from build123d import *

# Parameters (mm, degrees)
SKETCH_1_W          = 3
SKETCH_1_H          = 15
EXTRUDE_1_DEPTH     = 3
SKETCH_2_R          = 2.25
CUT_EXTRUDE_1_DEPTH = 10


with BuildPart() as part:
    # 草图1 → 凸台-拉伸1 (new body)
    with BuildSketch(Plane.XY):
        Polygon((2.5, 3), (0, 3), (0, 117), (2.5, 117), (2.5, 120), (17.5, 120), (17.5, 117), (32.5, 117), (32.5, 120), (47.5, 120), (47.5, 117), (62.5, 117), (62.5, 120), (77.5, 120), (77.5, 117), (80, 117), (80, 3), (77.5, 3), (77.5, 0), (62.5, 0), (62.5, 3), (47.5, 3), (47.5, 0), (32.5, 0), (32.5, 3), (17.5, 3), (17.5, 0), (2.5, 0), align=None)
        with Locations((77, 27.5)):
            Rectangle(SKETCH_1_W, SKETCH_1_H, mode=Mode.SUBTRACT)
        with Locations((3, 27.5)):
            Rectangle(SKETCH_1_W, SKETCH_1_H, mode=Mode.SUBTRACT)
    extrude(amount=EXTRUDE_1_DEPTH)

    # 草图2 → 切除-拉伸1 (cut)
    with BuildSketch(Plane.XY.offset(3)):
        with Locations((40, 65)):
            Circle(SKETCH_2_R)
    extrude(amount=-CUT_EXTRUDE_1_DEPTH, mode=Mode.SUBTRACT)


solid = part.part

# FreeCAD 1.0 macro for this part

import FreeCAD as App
import Part
import Sketcher

V = App.Vector
Q = App.Units.Quantity

doc = App.newDocument("Part")
params = doc.addObject("Spreadsheet::Sheet", "Params")
for row, (alias, value) in enumerate([
    ("sketch1_width", "15 mm"),
    ("sketch1_width2", "3 mm"),
    ("sketch1_height", "114 mm"),
    ("sketch1_width3", "2.5 mm"),
    ("pad1_length", "3 mm"),
    ("sketch2_diameter", "4.5 mm"),
    ("pocket1_length", "10 mm"),
], start=1):
    params.set(f"A{row}", alias)
    params.set(f"B{row}", "=" + value)
    params.setAlias(f"B{row}", alias)

body = doc.addObject("PartDesign::Body", "Body")

# Sketch on XY plane
sketch1 = body.newObject("Sketcher::SketchObject", "Sketch")
sketch1.AttachmentSupport = (doc.getObject("XY_Plane"), [""])
sketch1.MapMode = "FlatFace"
sketch1.addGeometry([
    Part.LineSegment(V(0, 3, 0), V(2.5, 3, 0)),  # 0
    Part.LineSegment(V(2.5, 3, 0), V(2.5, 0, 0)),  # 1
    Part.LineSegment(V(2.5, 0, 0), V(17.5, 0, 0)),  # 2
    Part.LineSegment(V(17.5, 0, 0), V(17.5, 3, 0)),  # 3
    Part.LineSegment(V(17.5, 3, 0), V(32.5, 3, 0)),  # 4
    Part.LineSegment(V(32.5, 3, 0), V(32.5, 0, 0)),  # 5
    Part.LineSegment(V(32.5, 0, 0), V(47.5, 0, 0)),  # 6
    Part.LineSegment(V(47.5, 0, 0), V(47.5, 3, 0)),  # 7
    Part.LineSegment(V(47.5, 3, 0), V(62.5, 3, 0)),  # 8
    Part.LineSegment(V(62.5, 3, 0), V(62.5, 0, 0)),  # 9
    Part.LineSegment(V(62.5, 0, 0), V(77.5, 0, 0)),  # 10
    Part.LineSegment(V(77.5, 0, 0), V(77.5, 3, 0)),  # 11
    Part.LineSegment(V(77.5, 3, 0), V(80, 3, 0)),  # 12
    Part.LineSegment(V(80, 3, 0), V(80, 117, 0)),  # 13
    Part.LineSegment(V(80, 117, 0), V(77.5, 117, 0)),  # 14
    Part.LineSegment(V(77.5, 117, 0), V(77.5, 120, 0)),  # 15
    Part.LineSegment(V(77.5, 120, 0), V(62.5, 120, 0)),  # 16
    Part.LineSegment(V(62.5, 120, 0), V(62.5, 117, 0)),  # 17
    Part.LineSegment(V(62.5, 117, 0), V(47.5, 117, 0)),  # 18
    Part.LineSegment(V(47.5, 117, 0), V(47.5, 120, 0)),  # 19
    Part.LineSegment(V(47.5, 120, 0), V(32.5, 120, 0)),  # 20
    Part.LineSegment(V(32.5, 120, 0), V(32.5, 117, 0)),  # 21
    Part.LineSegment(V(32.5, 117, 0), V(17.5, 117, 0)),  # 22
    Part.LineSegment(V(17.5, 117, 0), V(17.5, 120, 0)),  # 23
    Part.LineSegment(V(17.5, 120, 0), V(2.5, 120, 0)),  # 24
    Part.LineSegment(V(2.5, 120, 0), V(2.5, 117, 0)),  # 25
    Part.LineSegment(V(2.5, 117, 0), V(0, 117, 0)),  # 26
    Part.LineSegment(V(0, 117, 0), V(0, 3, 0)),  # 27
    Part.LineSegment(V(75.5, 20, 0), V(75.5, 35, 0)),  # 28
    Part.LineSegment(V(75.5, 35, 0), V(78.5, 35, 0)),  # 29
    Part.LineSegment(V(78.5, 35, 0), V(78.5, 20, 0)),  # 30
    Part.LineSegment(V(78.5, 20, 0), V(75.5, 20, 0)),  # 31
    Part.LineSegment(V(1.5, 20, 0), V(1.5, 35, 0)),  # 32
    Part.LineSegment(V(1.5, 35, 0), V(4.5, 35, 0)),  # 33
    Part.LineSegment(V(4.5, 35, 0), V(4.5, 20, 0)),  # 34
    Part.LineSegment(V(4.5, 20, 0), V(1.5, 20, 0)),  # 35
], False)
sketch1.addConstraint([
    Sketcher.Constraint("Coincident", 0, 2, 1, 1),
    Sketcher.Constraint("Coincident", 1, 2, 2, 1),
    Sketcher.Constraint("Coincident", 2, 2, 3, 1),
    Sketcher.Constraint("Coincident", 3, 2, 4, 1),
    Sketcher.Constraint("Coincident", 4, 2, 5, 1),
    Sketcher.Constraint("Coincident", 5, 2, 6, 1),
    Sketcher.Constraint("Coincident", 6, 2, 7, 1),
    Sketcher.Constraint("Coincident", 7, 2, 8, 1),
    Sketcher.Constraint("Coincident", 8, 2, 9, 1),
    Sketcher.Constraint("Coincident", 9, 2, 10, 1),
    Sketcher.Constraint("Coincident", 10, 2, 11, 1),
    Sketcher.Constraint("Coincident", 11, 2, 12, 1),
    Sketcher.Constraint("Coincident", 12, 2, 13, 1),
    Sketcher.Constraint("Coincident", 13, 2, 14, 1),
    Sketcher.Constraint("Coincident", 14, 2, 15, 1),
    Sketcher.Constraint("Coincident", 15, 2, 16, 1),
    Sketcher.Constraint("Coincident", 16, 2, 17, 1),
    Sketcher.Constraint("Coincident", 17, 2, 18, 1),
    Sketcher.Constraint("Coincident", 18, 2, 19, 1),
    Sketcher.Constraint("Coincident", 19, 2, 20, 1),
    Sketcher.Constraint("Coincident", 20, 2, 21, 1),
    Sketcher.Constraint("Coincident", 21, 2, 22, 1),
    Sketcher.Constraint("Coincident", 22, 2, 23, 1),
    Sketcher.Constraint("Coincident", 23, 2, 24, 1),
    Sketcher.Constraint("Coincident", 24, 2, 25, 1),
    Sketcher.Constraint("Coincident", 25, 2, 26, 1),
    Sketcher.Constraint("Coincident", 26, 2, 27, 1),
    Sketcher.Constraint("Coincident", 27, 2, 0, 1),
    Sketcher.Constraint("Coincident", 28, 2, 29, 1),
    Sketcher.Constraint("Coincident", 29, 2, 30, 1),
    Sketcher.Constraint("Coincident", 30, 2, 31, 1),
    Sketcher.Constraint("Coincident", 31, 2, 28, 1),
    Sketcher.Constraint("Coincident", 32, 2, 33, 1),
    Sketcher.Constraint("Coincident", 33, 2, 34, 1),
    Sketcher.Constraint("Coincident", 34, 2, 35, 1),
    Sketcher.Constraint("Coincident", 35, 2, 32, 1),
    Sketcher.Constraint("Horizontal", 0),
    Sketcher.Constraint("Vertical", 1),
    Sketcher.Constraint("Horizontal", 2),
    Sketcher.Constraint("Vertical", 3),
    Sketcher.Constraint("Horizontal", 4),
    Sketcher.Constraint("Vertical", 5),
    Sketcher.Constraint("Horizontal", 6),
    Sketcher.Constraint("Vertical", 7),
    Sketcher.Constraint("Horizontal", 8),
    Sketcher.Constraint("Vertical", 9),
    Sketcher.Constraint("Horizontal", 10),
    Sketcher.Constraint("Vertical", 11),
    Sketcher.Constraint("Horizontal", 12),
    Sketcher.Constraint("Vertical", 13),
    Sketcher.Constraint("Horizontal", 14),
    Sketcher.Constraint("Vertical", 15),
    Sketcher.Constraint("Horizontal", 16),
    Sketcher.Constraint("Vertical", 17),
    Sketcher.Constraint("Horizontal", 18),
    Sketcher.Constraint("Vertical", 19),
    Sketcher.Constraint("Horizontal", 20),
    Sketcher.Constraint("Vertical", 21),
    Sketcher.Constraint("Horizontal", 22),
    Sketcher.Constraint("Vertical", 23),
    Sketcher.Constraint("Horizontal", 24),
    Sketcher.Constraint("Vertical", 25),
    Sketcher.Constraint("Horizontal", 26),
    Sketcher.Constraint("Vertical", 27),
    Sketcher.Constraint("Vertical", 28),
    Sketcher.Constraint("Horizontal", 29),
    Sketcher.Constraint("Vertical", 30),
    Sketcher.Constraint("Horizontal", 31),
    Sketcher.Constraint("Vertical", 32),
    Sketcher.Constraint("Horizontal", 33),
    Sketcher.Constraint("Vertical", 34),
    Sketcher.Constraint("Horizontal", 35),
    Sketcher.Constraint("PointOnObject", 1, 2, -1),
    Sketcher.Constraint("PointOnObject", 5, 2, -1),
    Sketcher.Constraint("PointOnObject", 9, 2, -1),
    Sketcher.Constraint("PointOnObject", 26, 2, -2),
    Sketcher.Constraint("Horizontal", 0, 2, 3, 2),
    Sketcher.Constraint("Horizontal", 4, 2, 7, 2),
    Sketcher.Constraint("Horizontal", 8, 2, 11, 2),
    Sketcher.Constraint("Horizontal", 14, 2, 17, 2),
    Sketcher.Constraint("Horizontal", 16, 2, 19, 2),
    Sketcher.Constraint("Horizontal", 18, 2, 21, 2),
    Sketcher.Constraint("Horizontal", 20, 2, 23, 2),
    Sketcher.Constraint("Horizontal", 22, 2, 25, 2),
    Sketcher.Constraint("Horizontal", 29, 2, 32, 2),
    Sketcher.Constraint("Horizontal", 31, 2, 34, 2),
    Sketcher.Constraint("Vertical", 11, 2, 14, 2),
    Sketcher.Constraint("Vertical", 9, 2, 16, 2),
    Sketcher.Constraint("Vertical", 7, 2, 18, 2),
    Sketcher.Constraint("Vertical", 5, 2, 20, 2),
    Sketcher.Constraint("Vertical", 3, 2, 22, 2),
    Sketcher.Constraint("Vertical", 1, 2, 24, 2),
    Sketcher.Constraint("Equal", 2, 4),
    Sketcher.Constraint("Equal", 4, 6),
    Sketcher.Constraint("Equal", 6, 8),
    Sketcher.Constraint("Equal", 8, 10),
    Sketcher.Constraint("Equal", 0, 12),
    Sketcher.Constraint("Equal", 31, 33),
    Sketcher.Constraint("Equal", 35, 1),
    Sketcher.Constraint("Equal", 11, 15),
    Sketcher.Constraint("Equal", 24, 28),
    Sketcher.Constraint("DistanceX", 2, 1, 2, 2, Q("15 mm")),
    Sketcher.Constraint("DistanceX", 29, 1, 29, 2, Q("3 mm")),
    Sketcher.Constraint("DistanceY", 13, 1, 13, 2, Q("114 mm")),
    Sketcher.Constraint("DistanceX", 0, 1, 0, 2, Q("2.5 mm")),
    Sketcher.Constraint("DistanceY", -1, 1, 28, 2, Q("35 mm")),
    Sketcher.Constraint("DistanceX", 28, 2, 11, 2, Q("2 mm")),
    Sketcher.Constraint("DistanceX", 32, 2, 0, 2, Q("1 mm")),
])
sketch1.setExpression("Constraints[101]", "Params.sketch1_width")
sketch1.setExpression("Constraints[102]", "Params.sketch1_width2")
sketch1.setExpression("Constraints[103]", "Params.sketch1_height")
sketch1.setExpression("Constraints[104]", "Params.sketch1_width3")
pad1 = body.newObject("PartDesign::Pad", "Pad")
pad1.Profile = sketch1
pad1.setExpression("Length", "Params.pad1_length")

# Sketch on XY plane
sketch2 = body.newObject("Sketcher::SketchObject", "Sketch001")
sketch2.AttachmentSupport = (doc.getObject("XY_Plane"), [""])
sketch2.MapMode = "FlatFace"
sketch2.AttachmentOffset = App.Placement(V(0, 0, 3), App.Rotation())
sketch2.addGeometry(Part.Circle(V(40, 65, 0), V(0, 0, 1), 2.25), False)
sketch2.addConstraint([
    Sketcher.Constraint("Diameter", 0, Q("4.5 mm")),
    Sketcher.Constraint("DistanceX", -1, 1, 0, 3, Q("40 mm")),
    Sketcher.Constraint("DistanceY", -1, 1, 0, 3, Q("65 mm")),
])
sketch2.setExpression("Constraints[0]", "Params.sketch2_diameter")
pocket1 = body.newObject("PartDesign::Pocket", "Pocket")
pocket1.Profile = sketch2
pocket1.setExpression("Length", "Params.pocket1_length")

doc.recompute()
